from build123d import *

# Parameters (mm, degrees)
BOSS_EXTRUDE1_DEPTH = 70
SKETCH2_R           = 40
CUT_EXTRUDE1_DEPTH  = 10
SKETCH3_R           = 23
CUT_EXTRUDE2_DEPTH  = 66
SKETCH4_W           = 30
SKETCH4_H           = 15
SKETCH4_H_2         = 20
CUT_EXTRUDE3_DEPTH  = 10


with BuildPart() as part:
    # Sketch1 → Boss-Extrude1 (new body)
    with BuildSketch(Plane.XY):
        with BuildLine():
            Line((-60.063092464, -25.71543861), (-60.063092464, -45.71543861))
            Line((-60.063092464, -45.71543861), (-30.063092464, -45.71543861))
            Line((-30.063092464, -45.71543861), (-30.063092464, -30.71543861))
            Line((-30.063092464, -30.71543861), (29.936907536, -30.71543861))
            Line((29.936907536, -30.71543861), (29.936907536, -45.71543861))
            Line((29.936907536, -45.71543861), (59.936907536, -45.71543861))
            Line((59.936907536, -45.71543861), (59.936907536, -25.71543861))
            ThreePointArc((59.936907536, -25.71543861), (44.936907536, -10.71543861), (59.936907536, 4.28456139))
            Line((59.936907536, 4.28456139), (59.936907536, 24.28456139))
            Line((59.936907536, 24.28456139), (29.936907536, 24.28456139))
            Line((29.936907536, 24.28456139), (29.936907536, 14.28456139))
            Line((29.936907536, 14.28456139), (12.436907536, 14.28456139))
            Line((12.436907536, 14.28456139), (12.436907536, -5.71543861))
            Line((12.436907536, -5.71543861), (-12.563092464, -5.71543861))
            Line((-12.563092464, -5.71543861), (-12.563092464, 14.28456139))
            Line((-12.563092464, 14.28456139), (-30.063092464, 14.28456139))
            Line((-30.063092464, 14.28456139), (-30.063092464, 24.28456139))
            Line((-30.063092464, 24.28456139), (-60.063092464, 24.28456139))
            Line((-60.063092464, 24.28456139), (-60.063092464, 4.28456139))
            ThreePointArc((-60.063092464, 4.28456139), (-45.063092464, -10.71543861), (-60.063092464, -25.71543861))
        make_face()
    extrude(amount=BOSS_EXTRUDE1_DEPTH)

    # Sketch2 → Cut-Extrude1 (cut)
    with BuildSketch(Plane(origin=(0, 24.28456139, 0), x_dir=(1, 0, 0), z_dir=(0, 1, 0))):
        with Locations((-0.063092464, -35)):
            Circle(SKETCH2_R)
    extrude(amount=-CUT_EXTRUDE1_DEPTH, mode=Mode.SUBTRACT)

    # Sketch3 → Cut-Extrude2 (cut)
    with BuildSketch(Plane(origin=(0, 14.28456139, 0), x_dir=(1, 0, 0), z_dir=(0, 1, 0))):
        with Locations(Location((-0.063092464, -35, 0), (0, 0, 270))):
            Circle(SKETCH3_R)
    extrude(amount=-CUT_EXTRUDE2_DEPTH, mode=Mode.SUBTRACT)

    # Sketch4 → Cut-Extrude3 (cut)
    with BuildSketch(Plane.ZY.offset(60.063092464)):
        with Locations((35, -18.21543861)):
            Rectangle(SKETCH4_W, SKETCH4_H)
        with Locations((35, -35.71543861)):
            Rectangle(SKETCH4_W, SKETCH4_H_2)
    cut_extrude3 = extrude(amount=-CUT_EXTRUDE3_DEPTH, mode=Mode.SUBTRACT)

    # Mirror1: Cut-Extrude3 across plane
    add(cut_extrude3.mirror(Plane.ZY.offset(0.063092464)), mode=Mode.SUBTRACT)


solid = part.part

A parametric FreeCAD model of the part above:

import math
import FreeCAD as App
import Part
import Sketcher
from FreeCAD import Vector
Q = App.Units.Quantity


def add_polygon(sketch, points):
    """Adds a closed chain of lines whose ends are joined by coincident constraints."""
    first, n = sketch.GeometryCount, len(points)
    for a, b in zip(points, points[1:] + points[:1]):
        sketch.addGeometry(Part.LineSegment(App.Vector(*a, 0), App.Vector(*b, 0)), False)
    for i in range(n):
        sketch.addConstraint(Sketcher.Constraint("Coincident", first + i, 2, first + (i + 1) % n, 1))

doc = App.newDocument("Part")
body = doc.addObject("PartDesign::Body", "Body")

# Sketch on XY plane
sketch1 = body.newObject("Sketcher::SketchObject", "Sketch")
sketch1.AttachmentSupport = (doc.getObject("XY_Plane"), [""])
sketch1.MapMode = "FlatFace"
sketch1.addGeometry(Part.LineSegment(Vector(-60, -26, 0), Vector(-60, -46, 0)), False)
sketch1.addGeometry(Part.LineSegment(Vector(-60, -46, 0), Vector(-30, -46, 0)), False)
sketch1.addGeometry(Part.LineSegment(Vector(-30, -46, 0), Vector(-30, -31, 0)), False)
sketch1.addGeometry(Part.LineSegment(Vector(-30, -31, 0), Vector(30, -31, 0)), False)
sketch1.addGeometry(Part.LineSegment(Vector(30, -31, 0), Vector(30, -46, 0)), False)
sketch1.addGeometry(Part.LineSegment(Vector(30, -46, 0), Vector(60, -46, 0)), False)
sketch1.addGeometry(Part.LineSegment(Vector(60, -46, 0), Vector(60, -26, 0)), False)
sketch1.addGeometry(Part.ArcOfCircle(Part.Circle(Vector(60, -11, 0), Vector(0, 0, 1), 15), math.radians(90), math.radians(270)), False)
sketch1.addGeometry(Part.LineSegment(Vector(60, 4, 0), Vector(60, 24, 0)), False)
sketch1.addGeometry(Part.LineSegment(Vector(60, 24, 0), Vector(30, 24, 0)), False)
sketch1.addGeometry(Part.LineSegment(Vector(30, 24, 0), Vector(30, 14, 0)), False)
sketch1.addGeometry(Part.LineSegment(Vector(30, 14, 0), Vector(12, 14, 0)), False)
sketch1.addGeometry(Part.LineSegment(Vector(12, 14, 0), Vector(12, -6, 0)), False)
sketch1.addGeometry(Part.LineSegment(Vector(12, -6, 0), Vector(-13, -6, 0)), False)
sketch1.addGeometry(Part.LineSegment(Vector(-13, -6, 0), Vector(-13, 14, 0)), False)
sketch1.addGeometry(Part.LineSegment(Vector(-13, 14, 0), Vector(-30, 14, 0)), False)
sketch1.addGeometry(Part.LineSegment(Vector(-30, 14, 0), Vector(-30, 24, 0)), False)
sketch1.addGeometry(Part.LineSegment(Vector(-30, 24, 0), Vector(-60, 24, 0)), False)
sketch1.addGeometry(Part.LineSegment(Vector(-60, 24, 0), Vector(-60, 4, 0)), False)
sketch1.addGeometry(Part.ArcOfCircle(Part.Circle(Vector(-60, -11, 0), Vector(0, 0, 1), 15), math.radians(-90), math.radians(90)), False)
sketch1.addConstraint(Sketcher.Constraint("Coincident", 0, 2, 1, 1))
sketch1.addConstraint(Sketcher.Constraint("Coincident", 1, 2, 2, 1))
sketch1.addConstraint(Sketcher.Constraint("Coincident", 2, 2, 3, 1))
sketch1.addConstraint(Sketcher.Constraint("Coincident", 3, 2, 4, 1))
sketch1.addConstraint(Sketcher.Constraint("Coincident", 4, 2, 5, 1))
sketch1.addConstraint(Sketcher.Constraint("Coincident", 5, 2, 6, 1))
sketch1.addConstraint(Sketcher.Constraint("Coincident", 6, 2, 7, 2))
sketch1.addConstraint(Sketcher.Constraint("Coincident", 7, 1, 8, 1))
sketch1.addConstraint(Sketcher.Constraint("Coincident", 8, 2, 9, 1))
sketch1.addConstraint(Sketcher.Constraint("Coincident", 9, 2, 10, 1))
sketch1.addConstraint(Sketcher.Constraint("Coincident", 10, 2, 11, 1))
sketch1.addConstraint(Sketcher.Constraint("Coincident", 11, 2, 12, 1))
sketch1.addConstraint(Sketcher.Constraint("Coincident", 12, 2, 13, 1))
sketch1.addConstraint(Sketcher.Constraint("Coincident", 13, 2, 14, 1))
sketch1.addConstraint(Sketcher.Constraint("Coincident", 14, 2, 15, 1))
sketch1.addConstraint(Sketcher.Constraint("Coincident", 15, 2, 16, 1))
sketch1.addConstraint(Sketcher.Constraint("Coincident", 16, 2, 17, 1))
sketch1.addConstraint(Sketcher.Constraint("Coincident", 17, 2, 18, 1))
sketch1.addConstraint(Sketcher.Constraint("Coincident", 18, 2, 19, 2))
sketch1.addConstraint(Sketcher.Constraint("Coincident", 19, 1, 0, 1))
sketch1.addConstraint(Sketcher.Constraint("Vertical", 0))
sketch1.addConstraint(Sketcher.Constraint("Horizontal", 1))
sketch1.addConstraint(Sketcher.Constraint("Vertical", 2))
sketch1.addConstraint(Sketcher.Constraint("Horizontal", 3))
sketch1.addConstraint(Sketcher.Constraint("Vertical", 4))
sketch1.addConstraint(Sketcher.Constraint("Horizontal", 5))
sketch1.addConstraint(Sketcher.Constraint("Vertical", 6))
sketch1.addConstraint(Sketcher.Constraint("Vertical", 8))
sketch1.addConstraint(Sketcher.Constraint("Horizontal", 9))
sketch1.addConstraint(Sketcher.Constraint("Vertical", 10))
sketch1.addConstraint(Sketcher.Constraint("Horizontal", 11))
sketch1.addConstraint(Sketcher.Constraint("Vertical", 12))
sketch1.addConstraint(Sketcher.Constraint("Horizontal", 13))
sketch1.addConstraint(Sketcher.Constraint("Vertical", 14))
sketch1.addConstraint(Sketcher.Constraint("Horizontal", 15))
sketch1.addConstraint(Sketcher.Constraint("Vertical", 16))
sketch1.addConstraint(Sketcher.Constraint("Horizontal", 17))
sketch1.addConstraint(Sketcher.Constraint("Vertical", 18))
sketch1.addConstraint(Sketcher.Constraint("Equal", 7, 19))
sketch1.addConstraint(Sketcher.Constraint("Horizontal", 7, 3, 19, 3))
sketch1.addConstraint(Sketcher.Constraint("Horizontal", 1, 2, 4, 2))
sketch1.addConstraint(Sketcher.Constraint("Horizontal", 11, 2, 14, 2))
sketch1.addConstraint(Sketcher.Constraint("Horizontal", 9, 2, 16, 2))
sketch1.addConstraint(Sketcher.Constraint("Vertical", 19, 3, 0, 2))
sketch1.addConstraint(Sketcher.Constraint("Vertical", 7, 3, 5, 2))
sketch1.addConstraint(Sketcher.Constraint("Vertical", 6, 2, 7, 1))
sketch1.addConstraint(Sketcher.Constraint("Vertical", 4, 2, 9, 2))
sketch1.addConstraint(Sketcher.Constraint("Vertical", 2, 2, 15, 2))
sketch1.addConstraint(Sketcher.Constraint("Vertical", 0, 2, 17, 2))
sketch1.addConstraint(Sketcher.Constraint("Equal", 1, 5))
sketch1.addConstraint(Sketcher.Constraint("Equal", 11, 15))
sketch1.addConstraint(Sketcher.Constraint("Equal", 6, 8))
sketch1.addConstraint(Sketcher.Constraint("Equal", 8, 12))
sketch1.addConstraint(Sketcher.Constraint("Radius", 7, Q("15 mm")))
sketch1.addConstraint(Sketcher.Constraint("DistanceX", 1, 1, 1, 2, Q("30 mm")))
sketch1.addConstraint(Sketcher.Constraint("DistanceX", 3, 1, 3, 2, Q("60 mm")))
sketch1.addConstraint(Sketcher.Constraint("DistanceX", 13, 2, 13, 1, Q("25 mm")))
sketch1.addConstraint(Sketcher.Constraint("DistanceY", 0, 2, 0, 1, Q("20 mm")))
sketch1.addConstraint(Sketcher.Constraint("DistanceY", 2, 1, 2, 2, Q("15 mm")))
sketch1.addConstraint(Sketcher.Constraint("DistanceY", 10, 2, 10, 1, Q("10 mm")))
sketch1.addConstraint(Sketcher.Constraint("DistanceY", 7, 3, -1, 1, Q("10.715439 mm")))
sketch1.addConstraint(Sketcher.Constraint("DistanceX", -1, 1, 7, 3, Q("59.936908 mm")))
pad1 = body.newObject("PartDesign::Pad", "Pad")
pad1.Profile = sketch1
pad1.Length = 70

# Sketch on XZ plane
sketch2 = body.newObject("Sketcher::SketchObject", "Sketch001")
sketch2.AttachmentSupport = (doc.getObject("XZ_Plane"), [""])
sketch2.MapMode = "FlatFace"
sketch2.AttachmentOffset = App.Placement(Vector(0, 0, -24.284561), App.Rotation())
sketch2.addGeometry(Part.Circle(Vector(0, 35, 0), Vector(0, 0, 1), 40), False)
sketch2.addConstraint(Sketcher.Constraint("Diameter", 0, Q("80 mm")))
sketch2.addConstraint(Sketcher.Constraint("DistanceY", -1, 1, 0, 3, Q("35 mm")))
sketch2.addConstraint(Sketcher.Constraint("DistanceX", 0, 3, -1, 1, Q("0.063092 mm")))
pocket1 = body.newObject("PartDesign::Pocket", "Pocket")
pocket1.Profile = sketch2
pocket1.Length = 10
pocket1.Reversed = True

# Sketch on XZ plane
sketch3 = body.newObject("Sketcher::SketchObject", "Sketch002")
sketch3.AttachmentSupport = (doc.getObject("XZ_Plane"), [""])
sketch3.MapMode = "FlatFace"
sketch3.AttachmentOffset = App.Placement(Vector(0, 0, -14.284561), App.Rotation())
sketch3.addGeometry(Part.Circle(Vector(0, 35, 0), Vector(0, 0, 1), 23), False)
sketch3.addConstraint(Sketcher.Constraint("Diameter", 0, Q("46 mm")))
sketch3.addConstraint(Sketcher.Constraint("DistanceY", -1, 1, 0, 3, Q("35 mm")))
sketch3.addConstraint(Sketcher.Constraint("DistanceX", 0, 3, -1, 1, Q("0.063092 mm")))
pocket2 = body.newObject("PartDesign::Pocket", "Pocket001")
pocket2.Profile = sketch3
pocket2.Length = 66
pocket2.Reversed = True

# Sketch on YZ plane
sketch4 = body.newObject("Sketcher::SketchObject", "Sketch003")
sketch4.AttachmentSupport = (doc.getObject("YZ_Plane"), [""])
sketch4.MapMode = "FlatFace"
sketch4.AttachmentOffset = App.Placement(Vector(0, 0, -60.063092), App.Rotation())
add_polygon(sketch4, [(-11, 20), (-46, 20), (-46, 50), (-11, 50)])  # lines 0-3
sketch4.addConstraint(Sketcher.Constraint("Horizontal", 0))
sketch4.addConstraint(Sketcher.Constraint("Vertical", 1))
sketch4.addConstraint(Sketcher.Constraint("Horizontal", 2))
sketch4.addConstraint(Sketcher.Constraint("Vertical", 3))
sketch4.addConstraint(Sketcher.Constraint("DistanceX", 0, 2, 0, 1, Q("35 mm")))
sketch4.addConstraint(Sketcher.Constraint("DistanceY", 1, 1, 1, 2, Q("30 mm")))
sketch4.addConstraint(Sketcher.Constraint("DistanceY", -1, 1, 0, 2, Q("20 mm")))
sketch4.addConstraint(Sketcher.Constraint("DistanceX", 0, 2, -1, 1, Q("45.715439 mm")))
pocket3 = body.newObject("PartDesign::Pocket", "Pocket002")
pocket3.Profile = sketch4
pocket3.Length = 10
pocket3.Reversed = True
doc.recompute()

datumplane = body.newObject("PartDesign::Plane", "DatumPlane")
datumplane.AttachmentSupport = (doc.getObject("YZ_Plane"), [""])
datumplane.MapMode = "FlatFace"
datumplane.AttachmentOffset = App.Placement(Vector(0, 0, -0.063092), App.Rotation())
mirrored = body.newObject("PartDesign::Mirrored", "Mirrored")
mirrored.Originals = [pocket3]
mirrored.MirrorPlane = (datumplane, [""])
body.Tip = mirrored

doc.recompute()
